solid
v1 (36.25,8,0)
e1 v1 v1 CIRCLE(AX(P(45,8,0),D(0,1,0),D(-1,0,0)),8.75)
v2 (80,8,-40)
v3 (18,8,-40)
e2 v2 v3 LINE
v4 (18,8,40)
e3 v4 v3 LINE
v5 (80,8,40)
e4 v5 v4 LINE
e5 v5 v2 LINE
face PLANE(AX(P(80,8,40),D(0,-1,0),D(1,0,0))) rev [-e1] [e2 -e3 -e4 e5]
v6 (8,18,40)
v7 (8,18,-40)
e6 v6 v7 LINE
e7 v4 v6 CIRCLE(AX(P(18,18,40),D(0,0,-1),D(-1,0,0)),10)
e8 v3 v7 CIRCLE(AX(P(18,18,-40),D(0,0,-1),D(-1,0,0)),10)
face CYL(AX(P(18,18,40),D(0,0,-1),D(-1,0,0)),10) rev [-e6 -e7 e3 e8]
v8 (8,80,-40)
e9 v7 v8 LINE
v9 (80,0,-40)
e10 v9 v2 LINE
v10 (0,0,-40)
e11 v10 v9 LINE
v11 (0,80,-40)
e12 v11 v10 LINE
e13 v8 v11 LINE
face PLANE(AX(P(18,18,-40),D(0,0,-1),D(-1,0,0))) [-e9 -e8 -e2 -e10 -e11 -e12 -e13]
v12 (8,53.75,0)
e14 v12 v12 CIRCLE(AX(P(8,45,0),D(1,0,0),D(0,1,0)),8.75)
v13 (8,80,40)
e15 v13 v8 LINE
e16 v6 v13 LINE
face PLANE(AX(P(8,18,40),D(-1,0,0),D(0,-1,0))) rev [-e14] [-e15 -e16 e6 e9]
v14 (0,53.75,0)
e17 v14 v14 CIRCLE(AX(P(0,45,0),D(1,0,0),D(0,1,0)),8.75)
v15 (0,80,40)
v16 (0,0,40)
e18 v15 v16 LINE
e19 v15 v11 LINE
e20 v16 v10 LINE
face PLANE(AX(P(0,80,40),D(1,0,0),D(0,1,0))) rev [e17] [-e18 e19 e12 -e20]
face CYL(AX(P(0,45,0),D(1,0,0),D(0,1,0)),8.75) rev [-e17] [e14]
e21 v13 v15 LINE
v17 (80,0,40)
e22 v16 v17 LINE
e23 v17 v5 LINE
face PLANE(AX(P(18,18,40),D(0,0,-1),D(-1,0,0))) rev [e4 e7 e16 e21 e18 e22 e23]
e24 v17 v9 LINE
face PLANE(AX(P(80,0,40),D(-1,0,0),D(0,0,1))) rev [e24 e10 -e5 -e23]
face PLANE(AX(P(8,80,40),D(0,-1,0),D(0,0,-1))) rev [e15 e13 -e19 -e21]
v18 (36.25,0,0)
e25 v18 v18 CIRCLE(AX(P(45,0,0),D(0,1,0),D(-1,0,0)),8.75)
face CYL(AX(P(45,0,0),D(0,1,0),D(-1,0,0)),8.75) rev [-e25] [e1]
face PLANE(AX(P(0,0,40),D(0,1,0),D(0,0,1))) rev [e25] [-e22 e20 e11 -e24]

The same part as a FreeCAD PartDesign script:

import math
import FreeCAD as App
import Part
import Sketcher

V = App.Vector
Q = App.Units.Quantity

doc = App.newDocument("Part")
body = doc.addObject("PartDesign::Body", "Body")

sketch1 = doc.addObject("Sketcher::SketchObject", "Sketch")
body.addObject(sketch1)
sketch1.AttachmentSupport = (doc.XY_Plane, [""])
sketch1.MapMode = "FlatFace"
sketch1.addGeometry([
    Part.LineSegment(V(0, 0, 0), V(80, 0, 0)),
    Part.LineSegment(V(80, 0, 0), V(80, 8, 0)),
    Part.LineSegment(V(80, 8, 0), V(18, 8, 0)),
    Part.ArcOfCircle(Part.Circle(V(18, 18, 0), V(0, 0, 1), 10), math.radians(180), math.radians(270)),
    Part.LineSegment(V(8, 18, 0), V(8, 80, 0)),
    Part.LineSegment(V(8, 80, 0), V(0, 80, 0)),
    Part.LineSegment(V(0, 80, 0), V(0, 0, 0)),
], False)
sketch1.addConstraint([
    Sketcher.Constraint("Coincident", 0, 2, 1, 1),
    Sketcher.Constraint("Coincident", 1, 2, 2, 1),
    Sketcher.Constraint("Tangent", 2, 2, 3, 2),
    Sketcher.Constraint("Tangent", 3, 1, 4, 1),
    Sketcher.Constraint("Coincident", 4, 2, 5, 1),
    Sketcher.Constraint("Coincident", 5, 2, 6, 1),
    Sketcher.Constraint("Coincident", 6, 2, 0, 1),
    Sketcher.Constraint("Horizontal", 0),
    Sketcher.Constraint("Vertical", 1),
    Sketcher.Constraint("Horizontal", 2),
    Sketcher.Constraint("Vertical", 4),
    Sketcher.Constraint("Horizontal", 5),
    Sketcher.Constraint("Vertical", 6),
    Sketcher.Constraint("Coincident", 6, 2, -1, 1),
    Sketcher.Constraint("Equal", 5, 1),
    Sketcher.Constraint("Equal", 2, 4),
    Sketcher.Constraint("Radius", 3, Q("10 mm")),
    Sketcher.Constraint("DistanceX", 0, 1, 0, 2, Q("80 mm")),
    Sketcher.Constraint("DistanceX", 2, 2, 2, 1, Q("62 mm")),
])
pad1 = doc.addObject("PartDesign::Pad", "Pad")
body.addObject(pad1)
pad1.Profile = sketch1
pad1.Length = 80
pad1.Midplane = True

sketch2 = doc.addObject("Sketcher::SketchObject", "Sketch001")
body.addObject(sketch2)
sketch2.AttachmentSupport = (doc.XZ_Plane, [""])
sketch2.MapMode = "FlatFace"
sketch2.AttachmentOffset = App.Placement(V(0, 0, -8), App.Rotation())
sketch2.addGeometry(Part.Circle(V(45, 0, 0), V(0, 0, 1), 9), False)
sketch2.addConstraint([
    Sketcher.Constraint("PointOnObject", 0, 3, -1),
    Sketcher.Constraint("Diameter", 0, Q("17.5 mm")),
    Sketcher.Constraint("DistanceX", -1, 1, 0, 3, Q("45 mm")),
])
pocket1 = doc.addObject("PartDesign::Pocket", "Pocket")
body.addObject(pocket1)
pocket1.Profile = sketch2
pocket1.Type = "ThroughAll"
pocket1.Reversed = True

sketch3 = doc.addObject("Sketcher::SketchObject", "Sketch002")
body.addObject(sketch3)
sketch3.AttachmentSupport = (doc.YZ_Plane, [""])
sketch3.MapMode = "FlatFace"
sketch3.AttachmentOffset = App.Placement(V(0, 0, 8), App.Rotation())
sketch3.addGeometry(Part.Circle(V(45, 0, 0), V(0, 0, 1), 9), False)
sketch3.addConstraint([
    Sketcher.Constraint("PointOnObject", 0, 3, -1),
    Sketcher.Constraint("Diameter", 0, Q("17.5 mm")),
    Sketcher.Constraint("DistanceX", -1, 1, 0, 3, Q("45 mm")),
])
pocket2 = doc.addObject("PartDesign::Pocket", "Pocket001")
body.addObject(pocket2)
pocket2.Profile = sketch3
pocket2.Type = "ThroughAll"

doc.recompute()
